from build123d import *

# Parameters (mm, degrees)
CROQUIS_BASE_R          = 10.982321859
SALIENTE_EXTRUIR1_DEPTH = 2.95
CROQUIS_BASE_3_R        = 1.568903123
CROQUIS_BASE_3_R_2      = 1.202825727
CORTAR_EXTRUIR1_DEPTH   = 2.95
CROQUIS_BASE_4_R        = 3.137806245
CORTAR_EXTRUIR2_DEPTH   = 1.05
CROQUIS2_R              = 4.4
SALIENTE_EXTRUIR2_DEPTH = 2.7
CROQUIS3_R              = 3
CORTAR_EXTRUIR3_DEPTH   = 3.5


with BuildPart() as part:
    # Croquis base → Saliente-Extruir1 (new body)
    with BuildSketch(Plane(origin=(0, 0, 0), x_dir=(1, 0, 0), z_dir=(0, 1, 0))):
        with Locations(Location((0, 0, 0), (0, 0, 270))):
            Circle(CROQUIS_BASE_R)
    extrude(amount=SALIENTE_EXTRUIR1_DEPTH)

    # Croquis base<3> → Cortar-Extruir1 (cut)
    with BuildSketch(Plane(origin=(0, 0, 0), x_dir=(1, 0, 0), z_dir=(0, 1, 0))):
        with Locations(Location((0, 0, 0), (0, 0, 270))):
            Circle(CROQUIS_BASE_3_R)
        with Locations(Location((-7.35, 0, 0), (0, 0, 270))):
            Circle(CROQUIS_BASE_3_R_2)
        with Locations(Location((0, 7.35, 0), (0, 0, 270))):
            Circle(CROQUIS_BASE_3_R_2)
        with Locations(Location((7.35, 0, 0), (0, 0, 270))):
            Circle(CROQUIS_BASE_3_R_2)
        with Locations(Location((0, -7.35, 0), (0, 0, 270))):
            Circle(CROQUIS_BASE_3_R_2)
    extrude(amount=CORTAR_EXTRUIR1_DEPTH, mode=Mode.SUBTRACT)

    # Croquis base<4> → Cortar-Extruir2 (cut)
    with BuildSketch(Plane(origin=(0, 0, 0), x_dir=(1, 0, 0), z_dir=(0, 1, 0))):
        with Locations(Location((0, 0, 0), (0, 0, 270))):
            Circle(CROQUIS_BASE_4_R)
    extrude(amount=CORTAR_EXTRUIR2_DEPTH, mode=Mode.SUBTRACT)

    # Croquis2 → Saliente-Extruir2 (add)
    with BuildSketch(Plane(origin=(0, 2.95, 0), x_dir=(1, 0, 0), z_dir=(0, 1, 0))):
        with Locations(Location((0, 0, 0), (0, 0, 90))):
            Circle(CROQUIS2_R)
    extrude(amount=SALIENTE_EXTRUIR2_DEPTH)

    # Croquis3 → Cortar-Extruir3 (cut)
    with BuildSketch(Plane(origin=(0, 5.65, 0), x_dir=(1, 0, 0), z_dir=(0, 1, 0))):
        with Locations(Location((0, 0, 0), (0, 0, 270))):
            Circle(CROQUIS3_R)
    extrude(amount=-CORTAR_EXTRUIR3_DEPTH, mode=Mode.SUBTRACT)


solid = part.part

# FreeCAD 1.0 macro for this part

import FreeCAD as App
import Part
import Sketcher
from FreeCAD import Vector

doc = App.newDocument("Part")
body = doc.addObject("PartDesign::Body", "Body")

# Sketch on XZ plane
sketch1 = doc.addObject("Sketcher::SketchObject", "Sketch")
body.addObject(sketch1)
sketch1.AttachmentSupport = (doc.XZ_Plane, [""])
sketch1.MapMode = "FlatFace"
sketch1.addGeometry(Part.Circle(Vector(0, 0, 0), Vector(0, 0, 1), 11), False)
sketch1.addConstraint([
    Sketcher.Constraint("Coincident", 0, 3, -1, 1),
    Sketcher.Constraint("Diameter", 0, 21.964644),
])
pad1 = doc.addObject("PartDesign::Pad", "Pad")
body.addObject(pad1)
pad1.Profile = sketch1
pad1.Length = 2.95
pad1.Reversed = True

# Sketch on XZ plane
sketch2 = doc.addObject("Sketcher::SketchObject", "Sketch001")
body.addObject(sketch2)
sketch2.AttachmentSupport = (doc.XZ_Plane, [""])
sketch2.MapMode = "FlatFace"
sketch2.addGeometry([
    Part.Circle(Vector(0, 0, 0), Vector(0, 0, 1), 1.6),  # 0
    Part.Circle(Vector(-7.3, 0, 0), Vector(0, 0, 1), 1.2),  # 1
    Part.Circle(Vector(0, -7.3, 0), Vector(0, 0, 1), 1.2),  # 2
    Part.Circle(Vector(7.3, 0, 0), Vector(0, 0, 1), 1.2),  # 3
    Part.Circle(Vector(0, 7.3, 0), Vector(0, 0, 1), 1.2),  # 4
], False)
sketch2.addConstraint([
    Sketcher.Constraint("Coincident", 0, 3, -1, 1),
    Sketcher.Constraint("Equal", 1, 2),
    Sketcher.Constraint("Equal", 2, 3),
    Sketcher.Constraint("Equal", 3, 4),
    Sketcher.Constraint("Symmetric", 1, 3, 3, 3, -1, 1),
    Sketcher.Constraint("Symmetric", 2, 3, 4, 3, -1, 1),
    Sketcher.Constraint("PointOnObject", 1, 3, -1),
    Sketcher.Constraint("PointOnObject", 2, 3, -2),
    Sketcher.Constraint("DistanceX", 1, 3, 3, 3, 14.7),
    Sketcher.Constraint("DistanceY", 2, 3, 4, 3, 14.7),
    Sketcher.Constraint("Diameter", 1, 2.405651),
    Sketcher.Constraint("Diameter", 0, 3.137806),
])
pocket1 = doc.addObject("PartDesign::Pocket", "Pocket")
body.addObject(pocket1)
pocket1.Profile = sketch2
pocket1.Length = 2.95

# Sketch on XZ plane
sketch3 = doc.addObject("Sketcher::SketchObject", "Sketch002")
body.addObject(sketch3)
sketch3.AttachmentSupport = (doc.XZ_Plane, [""])
sketch3.MapMode = "FlatFace"
sketch3.addGeometry(Part.Circle(Vector(0, 0, 0), Vector(0, 0, 1), 3.1), False)
sketch3.addConstraint([
    Sketcher.Constraint("Coincident", 0, 3, -1, 1),
    Sketcher.Constraint("Diameter", 0, 6.275612),
])
pocket2 = doc.addObject("PartDesign::Pocket", "Pocket001")
body.addObject(pocket2)
pocket2.Profile = sketch3
pocket2.Length = 1.05

# Sketch on XZ plane
sketch4 = doc.addObject("Sketcher::SketchObject", "Sketch003")
body.addObject(sketch4)
sketch4.AttachmentSupport = (doc.XZ_Plane, [""])
sketch4.MapMode = "FlatFace"
sketch4.AttachmentOffset = App.Placement(Vector(0, 0, -2.95), App.Rotation())
sketch4.addGeometry(Part.Circle(Vector(0, 0, 0), Vector(0, 0, 1), 4.4), False)
sketch4.addConstraint([
    Sketcher.Constraint("Coincident", 0, 3, -1, 1),
    Sketcher.Constraint("Diameter", 0, 8.8),
])
pad2 = doc.addObject("PartDesign::Pad", "Pad001")
body.addObject(pad2)
pad2.Profile = sketch4
pad2.Length = 2.7
pad2.Reversed = True

# Sketch on XZ plane
sketch5 = doc.addObject("Sketcher::SketchObject", "Sketch004")
body.addObject(sketch5)
sketch5.AttachmentSupport = (doc.XZ_Plane, [""])
sketch5.MapMode = "FlatFace"
sketch5.AttachmentOffset = App.Placement(Vector(0, 0, -5.65), App.Rotation())
sketch5.addGeometry(Part.Circle(Vector(0, 0, 0), Vector(0, 0, 1), 3), False)
sketch5.addConstraint([
    Sketcher.Constraint("Coincident", 0, 3, -1, 1),
    Sketcher.Constraint("Diameter", 0, 6.0),
])
pocket3 = doc.addObject("PartDesign::Pocket", "Pocket002")
body.addObject(pocket3)
pocket3.Profile = sketch5
pocket3.Length = 3.5
pocket3.Reversed = True

doc.recompute()
